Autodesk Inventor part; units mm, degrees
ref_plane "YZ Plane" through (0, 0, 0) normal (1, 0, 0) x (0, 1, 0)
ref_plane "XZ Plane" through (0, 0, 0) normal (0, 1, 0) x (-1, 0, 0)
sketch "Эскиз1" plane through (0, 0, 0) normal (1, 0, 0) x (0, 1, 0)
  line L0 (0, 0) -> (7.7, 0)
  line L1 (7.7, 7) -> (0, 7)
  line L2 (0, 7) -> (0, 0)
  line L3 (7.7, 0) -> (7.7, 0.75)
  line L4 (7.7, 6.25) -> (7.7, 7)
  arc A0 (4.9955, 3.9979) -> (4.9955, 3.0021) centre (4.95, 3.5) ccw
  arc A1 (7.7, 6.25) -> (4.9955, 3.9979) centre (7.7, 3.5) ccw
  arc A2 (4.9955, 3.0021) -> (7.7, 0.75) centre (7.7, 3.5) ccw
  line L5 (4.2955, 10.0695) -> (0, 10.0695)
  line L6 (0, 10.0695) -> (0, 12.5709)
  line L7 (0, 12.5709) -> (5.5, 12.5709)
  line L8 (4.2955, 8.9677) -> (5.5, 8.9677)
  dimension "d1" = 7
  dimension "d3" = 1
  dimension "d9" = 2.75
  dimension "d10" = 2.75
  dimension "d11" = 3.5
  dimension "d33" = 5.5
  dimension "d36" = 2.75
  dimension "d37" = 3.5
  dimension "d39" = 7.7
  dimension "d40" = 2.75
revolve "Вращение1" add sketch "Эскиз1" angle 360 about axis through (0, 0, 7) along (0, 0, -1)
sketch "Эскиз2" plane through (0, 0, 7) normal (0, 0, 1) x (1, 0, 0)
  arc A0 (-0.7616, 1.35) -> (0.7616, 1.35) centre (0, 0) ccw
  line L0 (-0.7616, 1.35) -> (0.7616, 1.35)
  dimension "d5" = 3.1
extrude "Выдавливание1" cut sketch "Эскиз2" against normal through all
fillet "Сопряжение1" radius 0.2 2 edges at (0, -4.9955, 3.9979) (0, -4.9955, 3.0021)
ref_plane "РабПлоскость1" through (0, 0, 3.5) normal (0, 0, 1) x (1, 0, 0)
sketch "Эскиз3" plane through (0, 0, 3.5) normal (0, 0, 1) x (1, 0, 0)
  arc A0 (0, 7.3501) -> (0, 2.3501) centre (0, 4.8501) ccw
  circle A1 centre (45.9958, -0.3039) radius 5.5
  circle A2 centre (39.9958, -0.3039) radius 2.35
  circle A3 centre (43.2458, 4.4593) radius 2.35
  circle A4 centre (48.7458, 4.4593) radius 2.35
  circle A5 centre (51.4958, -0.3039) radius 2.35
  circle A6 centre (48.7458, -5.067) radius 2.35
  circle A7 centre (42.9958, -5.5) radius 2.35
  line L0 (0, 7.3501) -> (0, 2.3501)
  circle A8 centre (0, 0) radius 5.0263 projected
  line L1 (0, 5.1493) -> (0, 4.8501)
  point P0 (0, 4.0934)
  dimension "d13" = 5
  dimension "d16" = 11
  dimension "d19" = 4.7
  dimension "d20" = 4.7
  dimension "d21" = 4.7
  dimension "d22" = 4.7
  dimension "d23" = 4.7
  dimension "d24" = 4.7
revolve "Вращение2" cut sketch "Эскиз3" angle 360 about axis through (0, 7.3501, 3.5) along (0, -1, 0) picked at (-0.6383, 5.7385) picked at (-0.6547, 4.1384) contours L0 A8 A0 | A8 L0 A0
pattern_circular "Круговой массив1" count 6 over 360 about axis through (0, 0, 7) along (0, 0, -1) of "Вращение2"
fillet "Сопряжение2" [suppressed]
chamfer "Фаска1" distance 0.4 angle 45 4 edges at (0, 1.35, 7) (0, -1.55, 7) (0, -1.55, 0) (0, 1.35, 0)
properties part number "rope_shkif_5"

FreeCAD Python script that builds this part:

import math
import FreeCAD as App
import Part
import Sketcher


def edges_at(feature, points):
    """Names of the edges that pass closest to the given points."""
    edges = feature.Shape.Edges
    near = lambda p: min(range(len(edges)), key=lambda i: edges[i].distToShape(Part.Vertex(*p))[0])
    return sorted({f"Edge{near(p) + 1}" for p in points})

doc = App.newDocument("Part")
body = doc.addObject("PartDesign::Body", "Body")

sketch1 = doc.addObject("Sketcher::SketchObject", "Sketch")
body.addObject(sketch1)
sketch1.AttachmentSupport = (doc.YZ_Plane, [""])
sketch1.MapMode = "FlatFace"
sketch1.addGeometry([
    Part.LineSegment(App.Vector(0, 7, 0), App.Vector(0, 0, 0)),
    Part.LineSegment(App.Vector(0, 0, 0), App.Vector(7.7, 0, 0)),
    Part.LineSegment(App.Vector(7.7, 0, 0), App.Vector(7.7, 0.75, 0)),
    Part.ArcOfCircle(Part.Circle(App.Vector(7.7, 3.5, 0), App.Vector(0, 0, 1), 2.75), math.radians(-170), math.radians(-90)),
    Part.ArcOfCircle(Part.Circle(App.Vector(4.95, 3.5, 0), App.Vector(0, 0, 1), 0.5), math.radians(85), math.radians(275)),
    Part.ArcOfCircle(Part.Circle(App.Vector(7.7, 3.5, 0), App.Vector(0, 0, 1), 2.75), math.radians(90), math.radians(170)),
    Part.LineSegment(App.Vector(7.7, 6.25, 0), App.Vector(7.7, 7, 0)),
    Part.LineSegment(App.Vector(7.7, 7, 0), App.Vector(0, 7, 0)),
], False)
sketch1.addConstraint([
    Sketcher.Constraint("Coincident", 0, 2, 1, 1),
    Sketcher.Constraint("Coincident", 1, 2, 2, 1),
    Sketcher.Constraint("Coincident", 2, 2, 3, 2),
    Sketcher.Constraint("Coincident", 3, 1, 4, 2),
    Sketcher.Constraint("Coincident", 4, 1, 5, 2),
    Sketcher.Constraint("Coincident", 5, 1, 6, 1),
    Sketcher.Constraint("Coincident", 6, 2, 7, 1),
    Sketcher.Constraint("Coincident", 7, 2, 0, 1),
    Sketcher.Constraint("Vertical", 0),
    Sketcher.Constraint("Horizontal", 1),
    Sketcher.Constraint("Vertical", 2),
    Sketcher.Constraint("Vertical", 6),
    Sketcher.Constraint("Horizontal", 7),
    Sketcher.Constraint("Coincident", 0, 2, -1, 1),
    Sketcher.Constraint("Coincident", 5, 3, 3, 3),
    Sketcher.Constraint("Equal", 3, 5),
    Sketcher.Constraint("Horizontal", 3, 3, 4, 3),
    Sketcher.Constraint("Vertical", 5, 3, 1, 2),
    Sketcher.Constraint("Vertical", 2, 2, 5, 1),
    Sketcher.Constraint("Equal", 2, 6),
    Sketcher.Constraint("Radius", 4, 0.5),
    Sketcher.Constraint("DistanceY", 0, 2, 0, 1, 7.0),
    Sketcher.Constraint("Radius", 3, 2.75),
    Sketcher.Constraint("DistanceX", 1, 1, 1, 2, 7.7),
    Sketcher.Constraint("DistanceX", 4, 3, 3, 3, 2.75),
])
revolution = doc.addObject("PartDesign::Revolution", "Revolution")
body.addObject(revolution)
revolution.Profile = sketch1
revolution.ReferenceAxis = (sketch1, ["V_Axis"])
revolution.Angle = 360

sketch2 = doc.addObject("Sketcher::SketchObject", "Sketch001")
body.addObject(sketch2)
sketch2.AttachmentSupport = (doc.XY_Plane, [""])
sketch2.MapMode = "FlatFace"
sketch2.AttachmentOffset = App.Placement(App.Vector(0, 0, 7), App.Rotation())
sketch2.addGeometry([
    Part.LineSegment(App.Vector(0.8, 1.4, 0), App.Vector(-0.8, 1.4, 0)),
    Part.ArcOfCircle(Part.Circle(App.Vector(0, 0, 0), App.Vector(0, 0, 1), 1.6), math.radians(119), math.radians(421)),
], False)
sketch2.addConstraint([
    Sketcher.Constraint("Coincident", 0, 1, 1, 2),
    Sketcher.Constraint("Coincident", 1, 1, 0, 2),
    Sketcher.Constraint("Horizontal", 0),
    Sketcher.Constraint("Coincident", 1, 3, -1, 1),
    Sketcher.Constraint("Radius", 1, 1.55),
    Sketcher.Constraint("DistanceY", -1, 1, 0, 1, 1.35),
])
pocket1 = doc.addObject("PartDesign::Pocket", "Pocket")
body.addObject(pocket1)
pocket1.Profile = sketch2
pocket1.Type = "ThroughAll"
doc.recompute()

fillet = doc.addObject("PartDesign::Fillet", "Fillet")
body.addObject(fillet)
fillet.Base = (pocket1, edges_at(pocket1, [(0, -4.995, 3.998), (0, -4.995, 3.002)]))
fillet.Radius = 0.2

sketch3 = doc.addObject("Sketcher::SketchObject", "Sketch002")
body.addObject(sketch3)
sketch3.AttachmentSupport = (doc.XY_Plane, [""])
sketch3.MapMode = "FlatFace"
sketch3.AttachmentOffset = App.Placement(App.Vector(0, 0, 3.5), App.Rotation())
sketch3.addGeometry([
    Part.ArcOfCircle(Part.Circle(App.Vector(0, 4.9, 0), App.Vector(0, 0, 1), 2.5), math.radians(90), math.radians(270)),
    Part.LineSegment(App.Vector(0, 2.4, 0), App.Vector(0, 7.4, 0)),
], False)
sketch3.addConstraint([
    Sketcher.Constraint("Coincident", 0, 1, 1, 2),
    Sketcher.Constraint("Coincident", 1, 1, 0, 2),
    Sketcher.Constraint("Vertical", 1),
    Sketcher.Constraint("PointOnObject", 0, 3, -2),
    Sketcher.Constraint("PointOnObject", 0, 1, -2),
    Sketcher.Constraint("Radius", 0, 2.5),
    Sketcher.Constraint("DistanceY", -1, 1, 0, 3, 4.85),
])
groove = doc.addObject("PartDesign::Groove", "Groove")
body.addObject(groove)
groove.Profile = sketch3
groove.ReferenceAxis = (sketch3, ["V_Axis"])
groove.Angle = 360
doc.recompute()

polarpattern = doc.addObject("PartDesign::PolarPattern", "PolarPattern")
body.addObject(polarpattern)
polarpattern.Originals = [groove]
polarpattern.Axis = (doc.Z_Axis, [""])
polarpattern.Angle = 360
polarpattern.Occurrences = 6
body.Tip = polarpattern
doc.recompute()

chamfer = doc.addObject("PartDesign::Chamfer", "Chamfer")
body.addObject(chamfer)
chamfer.Base = (polarpattern, edges_at(polarpattern, [
    (0, 1.35, 7),
    (0, -1.55, 7),
    (0, -1.55, 0),
    (0, 1.35, 0),
]))
chamfer.Size = 0.4

doc.recompute()
